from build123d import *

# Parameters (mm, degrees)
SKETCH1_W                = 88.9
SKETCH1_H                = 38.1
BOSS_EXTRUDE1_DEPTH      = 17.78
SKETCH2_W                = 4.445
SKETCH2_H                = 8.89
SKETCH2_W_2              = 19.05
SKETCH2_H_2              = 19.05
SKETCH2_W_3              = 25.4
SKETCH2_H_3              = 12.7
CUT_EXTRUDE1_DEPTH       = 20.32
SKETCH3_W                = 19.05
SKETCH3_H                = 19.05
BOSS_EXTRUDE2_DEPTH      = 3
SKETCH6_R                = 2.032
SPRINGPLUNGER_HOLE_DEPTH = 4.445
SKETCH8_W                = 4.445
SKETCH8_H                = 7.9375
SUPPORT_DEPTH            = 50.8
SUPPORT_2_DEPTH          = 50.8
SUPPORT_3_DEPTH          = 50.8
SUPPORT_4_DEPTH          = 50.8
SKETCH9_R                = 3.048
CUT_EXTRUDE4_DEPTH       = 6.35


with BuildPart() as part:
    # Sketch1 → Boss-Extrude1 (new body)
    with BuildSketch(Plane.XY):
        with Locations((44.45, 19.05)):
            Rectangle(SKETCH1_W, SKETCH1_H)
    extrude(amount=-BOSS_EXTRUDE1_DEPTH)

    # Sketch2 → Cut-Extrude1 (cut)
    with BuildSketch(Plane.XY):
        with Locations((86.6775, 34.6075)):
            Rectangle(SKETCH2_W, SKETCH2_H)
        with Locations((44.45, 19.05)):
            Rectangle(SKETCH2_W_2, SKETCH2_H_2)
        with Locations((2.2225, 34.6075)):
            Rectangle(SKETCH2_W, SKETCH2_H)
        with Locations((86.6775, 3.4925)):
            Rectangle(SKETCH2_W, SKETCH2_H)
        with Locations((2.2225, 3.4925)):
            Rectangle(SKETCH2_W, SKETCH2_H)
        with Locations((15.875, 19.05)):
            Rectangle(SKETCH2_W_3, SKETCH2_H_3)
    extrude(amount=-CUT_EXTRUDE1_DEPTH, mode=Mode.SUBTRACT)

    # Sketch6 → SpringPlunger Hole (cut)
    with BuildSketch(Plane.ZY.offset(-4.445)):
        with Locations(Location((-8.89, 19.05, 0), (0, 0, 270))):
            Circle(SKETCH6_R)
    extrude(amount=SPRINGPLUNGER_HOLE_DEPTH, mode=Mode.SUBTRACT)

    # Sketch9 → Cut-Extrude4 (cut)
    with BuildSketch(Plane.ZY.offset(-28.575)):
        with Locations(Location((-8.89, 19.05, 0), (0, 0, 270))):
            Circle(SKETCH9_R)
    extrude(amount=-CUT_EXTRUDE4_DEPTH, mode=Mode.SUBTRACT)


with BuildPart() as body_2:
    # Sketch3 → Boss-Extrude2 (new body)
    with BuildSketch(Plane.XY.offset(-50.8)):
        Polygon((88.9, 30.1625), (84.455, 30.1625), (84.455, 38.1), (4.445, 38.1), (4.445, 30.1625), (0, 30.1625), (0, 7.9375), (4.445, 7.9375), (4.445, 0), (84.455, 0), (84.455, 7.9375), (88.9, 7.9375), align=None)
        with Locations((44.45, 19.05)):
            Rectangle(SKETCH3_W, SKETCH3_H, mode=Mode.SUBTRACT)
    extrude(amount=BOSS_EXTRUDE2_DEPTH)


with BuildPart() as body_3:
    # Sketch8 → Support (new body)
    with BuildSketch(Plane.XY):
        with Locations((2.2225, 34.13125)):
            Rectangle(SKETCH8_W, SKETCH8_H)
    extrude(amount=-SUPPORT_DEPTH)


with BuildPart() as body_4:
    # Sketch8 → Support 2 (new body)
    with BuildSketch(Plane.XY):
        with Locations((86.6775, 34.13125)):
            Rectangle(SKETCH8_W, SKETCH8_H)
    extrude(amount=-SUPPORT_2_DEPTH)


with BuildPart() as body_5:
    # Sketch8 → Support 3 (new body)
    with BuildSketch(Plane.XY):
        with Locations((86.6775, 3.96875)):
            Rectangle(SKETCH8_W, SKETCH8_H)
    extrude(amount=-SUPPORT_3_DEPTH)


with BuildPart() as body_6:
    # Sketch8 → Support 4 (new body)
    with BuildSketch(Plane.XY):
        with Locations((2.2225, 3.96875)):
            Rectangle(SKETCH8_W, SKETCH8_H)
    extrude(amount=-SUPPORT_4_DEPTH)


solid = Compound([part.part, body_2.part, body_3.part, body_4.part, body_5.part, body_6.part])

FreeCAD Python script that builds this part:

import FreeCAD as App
import Part
import Sketcher
Q = App.Units.Quantity

doc = App.newDocument("Part")
body = doc.addObject("PartDesign::Body", "Body")

# Sketch on XY plane
sketch1 = body.newObject("Sketcher::SketchObject", "Sketch")
sketch1.AttachmentSupport = (doc.getObject("XY_Plane"), [""])
sketch1.MapMode = "FlatFace"
sketch1.addGeometry(Part.LineSegment(App.Vector(0, 38, 0), App.Vector(0, 0, 0)), False)
sketch1.addGeometry(Part.LineSegment(App.Vector(0, 0, 0), App.Vector(89, 0, 0)), False)
sketch1.addGeometry(Part.LineSegment(App.Vector(89, 0, 0), App.Vector(89, 38, 0)), False)
sketch1.addGeometry(Part.LineSegment(App.Vector(89, 38, 0), App.Vector(0, 38, 0)), False)
sketch1.addConstraint(Sketcher.Constraint("Coincident", 0, 2, 1, 1))
sketch1.addConstraint(Sketcher.Constraint("Coincident", 1, 2, 2, 1))
sketch1.addConstraint(Sketcher.Constraint("Coincident", 2, 2, 3, 1))
sketch1.addConstraint(Sketcher.Constraint("Coincident", 3, 2, 0, 1))
sketch1.addConstraint(Sketcher.Constraint("Vertical", 0))
sketch1.addConstraint(Sketcher.Constraint("Horizontal", 1))
sketch1.addConstraint(Sketcher.Constraint("Vertical", 2))
sketch1.addConstraint(Sketcher.Constraint("Horizontal", 3))
sketch1.addConstraint(Sketcher.Constraint("Coincident", 0, 2, -1, 1))
sketch1.addConstraint(Sketcher.Constraint("DistanceX", 1, 1, 1, 2, Q("3.5 in")))
sketch1.addConstraint(Sketcher.Constraint("DistanceY", 0, 2, 0, 1, Q("1.5 in")))
pad1 = body.newObject("PartDesign::Pad", "Pad")
pad1.Profile = sketch1
pad1.Length = Q("0.7 in")
pad1.Reversed = True

# Sketch on XY plane
sketch2 = body.newObject("Sketcher::SketchObject", "Sketch001")
sketch2.AttachmentSupport = (doc.getObject("XY_Plane"), [""])
sketch2.MapMode = "FlatFace"
sketch2.addGeometry(Part.LineSegment(App.Vector(84.5, 39.1, 0), App.Vector(84.5, 30.2, 0)), False)
sketch2.addGeometry(Part.LineSegment(App.Vector(84.5, 30.2, 0), App.Vector(88.9, 30.2, 0)), False)
sketch2.addGeometry(Part.LineSegment(App.Vector(88.9, 30.2, 0), App.Vector(88.9, 39.1, 0)), False)
sketch2.addGeometry(Part.LineSegment(App.Vector(88.9, 39.1, 0), App.Vector(84.5, 39.1, 0)), False)
sketch2.addGeometry(Part.LineSegment(App.Vector(34.9, 28.6, 0), App.Vector(34.9, 9.5, 0)), False)
sketch2.addGeometry(Part.LineSegment(App.Vector(34.9, 9.5, 0), App.Vector(54, 9.5, 0)), False)
sketch2.addGeometry(Part.LineSegment(App.Vector(54, 9.5, 0), App.Vector(54, 28.6, 0)), False)
sketch2.addGeometry(Part.LineSegment(App.Vector(54, 28.6, 0), App.Vector(34.9, 28.6, 0)), False)
sketch2.addGeometry(Part.LineSegment(App.Vector(0, 39.1, 0), App.Vector(0, 30.2, 0)), False)
sketch2.addGeometry(Part.LineSegment(App.Vector(0, 30.2, 0), App.Vector(4.4, 30.2, 0)), False)
sketch2.addGeometry(Part.LineSegment(App.Vector(4.4, 30.2, 0), App.Vector(4.4, 39.1, 0)), False)
sketch2.addGeometry(Part.LineSegment(App.Vector(4.4, 39.1, 0), App.Vector(0, 39.1, 0)), False)
sketch2.addGeometry(Part.LineSegment(App.Vector(84.5, 7.9, 0), App.Vector(84.5, -1, 0)), False)
sketch2.addGeometry(Part.LineSegment(App.Vector(84.5, -1, 0), App.Vector(88.9, -1, 0)), False)
sketch2.addGeometry(Part.LineSegment(App.Vector(88.9, -1, 0), App.Vector(88.9, 7.9, 0)), False)
sketch2.addGeometry(Part.LineSegment(App.Vector(88.9, 7.9, 0), App.Vector(84.5, 7.9, 0)), False)
sketch2.addGeometry(Part.LineSegment(App.Vector(0, 7.9, 0), App.Vector(0, -1, 0)), False)
sketch2.addGeometry(Part.LineSegment(App.Vector(0, -1, 0), App.Vector(4.4, -1, 0)), False)
sketch2.addGeometry(Part.LineSegment(App.Vector(4.4, -1, 0), App.Vector(4.4, 7.9, 0)), False)
sketch2.addGeometry(Part.LineSegment(App.Vector(4.4, 7.9, 0), App.Vector(0, 7.9, 0)), False)
sketch2.addGeometry(Part.LineSegment(App.Vector(3.2, 25.4, 0), App.Vector(3.2, 12.7, 0)), False)
sketch2.addGeometry(Part.LineSegment(App.Vector(3.2, 12.7, 0), App.Vector(28.6, 12.7, 0)), False)
sketch2.addGeometry(Part.LineSegment(App.Vector(28.6, 12.7, 0), App.Vector(28.6, 25.4, 0)), False)
sketch2.addGeometry(Part.LineSegment(App.Vector(28.6, 25.4, 0), App.Vector(3.2, 25.4, 0)), False)
sketch2.addConstraint(Sketcher.Constraint("Coincident", 0, 2, 1, 1))
sketch2.addConstraint(Sketcher.Constraint("Coincident", 1, 2, 2, 1))
sketch2.addConstraint(Sketcher.Constraint("Coincident", 2, 2, 3, 1))
sketch2.addConstraint(Sketcher.Constraint("Coincident", 3, 2, 0, 1))
sketch2.addConstraint(Sketcher.Constraint("Coincident", 4, 2, 5, 1))
sketch2.addConstraint(Sketcher.Constraint("Coincident", 5, 2, 6, 1))
sketch2.addConstraint(Sketcher.Constraint("Coincident", 6, 2, 7, 1))
sketch2.addConstraint(Sketcher.Constraint("Coincident", 7, 2, 4, 1))
sketch2.addConstraint(Sketcher.Constraint("Coincident", 8, 2, 9, 1))
sketch2.addConstraint(Sketcher.Constraint("Coincident", 9, 2, 10, 1))
sketch2.addConstraint(Sketcher.Constraint("Coincident", 10, 2, 11, 1))
sketch2.addConstraint(Sketcher.Constraint("Coincident", 11, 2, 8, 1))
sketch2.addConstraint(Sketcher.Constraint("Coincident", 12, 2, 13, 1))
sketch2.addConstraint(Sketcher.Constraint("Coincident", 13, 2, 14, 1))
sketch2.addConstraint(Sketcher.Constraint("Coincident", 14, 2, 15, 1))
sketch2.addConstraint(Sketcher.Constraint("Coincident", 15, 2, 12, 1))
sketch2.addConstraint(Sketcher.Constraint("Coincident", 16, 2, 17, 1))
sketch2.addConstraint(Sketcher.Constraint("Coincident", 17, 2, 18, 1))
sketch2.addConstraint(Sketcher.Constraint("Coincident", 18, 2, 19, 1))
sketch2.addConstraint(Sketcher.Constraint("Coincident", 19, 2, 16, 1))
sketch2.addConstraint(Sketcher.Constraint("Coincident", 20, 2, 21, 1))
sketch2.addConstraint(Sketcher.Constraint("Coincident", 21, 2, 22, 1))
sketch2.addConstraint(Sketcher.Constraint("Coincident", 22, 2, 23, 1))
sketch2.addConstraint(Sketcher.Constraint("Coincident", 23, 2, 20, 1))
sketch2.addConstraint(Sketcher.Constraint("Vertical", 0))
sketch2.addConstraint(Sketcher.Constraint("Horizontal", 1))
sketch2.addConstraint(Sketcher.Constraint("Vertical", 2))
sketch2.addConstraint(Sketcher.Constraint("Horizontal", 3))
sketch2.addConstraint(Sketcher.Constraint("Vertical", 4))
sketch2.addConstraint(Sketcher.Constraint("Horizontal", 5))
sketch2.addConstraint(Sketcher.Constraint("Vertical", 6))
sketch2.addConstraint(Sketcher.Constraint("Horizontal", 7))
sketch2.addConstraint(Sketcher.Constraint("Vertical", 8))
sketch2.addConstraint(Sketcher.Constraint("Horizontal", 9))
sketch2.addConstraint(Sketcher.Constraint("Vertical", 10))
sketch2.addConstraint(Sketcher.Constraint("Horizontal", 11))
sketch2.addConstraint(Sketcher.Constraint("Vertical", 12))
sketch2.addConstraint(Sketcher.Constraint("Horizontal", 13))
sketch2.addConstraint(Sketcher.Constraint("Vertical", 14))
sketch2.addConstraint(Sketcher.Constraint("Horizontal", 15))
sketch2.addConstraint(Sketcher.Constraint("Vertical", 16))
sketch2.addConstraint(Sketcher.Constraint("Horizontal", 17))
sketch2.addConstraint(Sketcher.Constraint("Vertical", 18))
sketch2.addConstraint(Sketcher.Constraint("Horizontal", 19))
sketch2.addConstraint(Sketcher.Constraint("Vertical", 20))
sketch2.addConstraint(Sketcher.Constraint("Horizontal", 21))
sketch2.addConstraint(Sketcher.Constraint("Vertical", 22))
sketch2.addConstraint(Sketcher.Constraint("Horizontal", 23))
sketch2.addConstraint(Sketcher.Constraint("PointOnObject", 8, 2, -2))
sketch2.addConstraint(Sketcher.Constraint("PointOnObject", 16, 2, -2))
sketch2.addConstraint(Sketcher.Constraint("Horizontal", 1, 2, 8, 2))
sketch2.addConstraint(Sketcher.Constraint("Horizontal", 3, 2, 10, 2))
sketch2.addConstraint(Sketcher.Constraint("Horizontal", 13, 2, 16, 2))
sketch2.addConstraint(Sketcher.Constraint("Horizontal", 15, 2, 18, 2))
sketch2.addConstraint(Sketcher.Constraint("Vertical", 3, 2, 12, 2))
sketch2.addConstraint(Sketcher.Constraint("Vertical", 2, 2, 13, 2))
sketch2.addConstraint(Sketcher.Constraint("Vertical", 10, 2, 17, 2))
sketch2.addConstraint(Sketcher.Constraint("Equal", 3, 9))
sketch2.addConstraint(Sketcher.Constraint("Equal", 7, 4))
sketch2.addConstraint(Sketcher.Constraint("Equal", 10, 12))
sketch2.addConstraint(Sketcher.Constraint("DistanceX", 21, 1, 21, 2, Q("1 in")))
sketch2.addConstraint(Sketcher.Constraint("DistanceY", 20, 2, 20, 1, Q("0.5 in")))
sketch2.addConstraint(Sketcher.Constraint("DistanceY", -1, 1, 22, 2, Q("1 in")))
sketch2.addConstraint(Sketcher.Constraint("DistanceX", 21, 2, 5, 2, Q("1 in")))
sketch2.addConstraint(Sketcher.Constraint("DistanceX", 5, 1, 5, 2, Q("0.75 in")))
sketch2.addConstraint(Sketcher.Constraint("DistanceY", 0, 2, 0, 1, Q("0.35 in")))
sketch2.addConstraint(Sketcher.Constraint("DistanceX", -1, 1, 1, 2, Q("3.5 in")))
sketch2.addConstraint(Sketcher.Constraint("DistanceX", 5, 2, 0, 2, Q("1.2 in")))
sketch2.addConstraint(Sketcher.Constraint("DistanceX", 9, 2, 7, 2, Q("1.2 in")))
sketch2.addConstraint(Sketcher.Constraint("DistanceY", -1, 1, 0, 2, Q("1.1875 in")))
sketch2.addConstraint(Sketcher.Constraint("DistanceY", -1, 1, 4, 2, Q("0.375 in")))
sketch2.addConstraint(Sketcher.Constraint("DistanceY", -1, 1, 14, 2, Q("0.3125 in")))
pocket1 = body.newObject("PartDesign::Pocket", "Pocket")
pocket1.Profile = sketch2
pocket1.Length = Q("0.8 in")

# Sketch on YZ plane
sketch3 = body.newObject("Sketcher::SketchObject", "Sketch002")
sketch3.AttachmentSupport = (doc.getObject("YZ_Plane"), [""])
sketch3.MapMode = "FlatFace"
sketch3.AttachmentOffset = App.Placement(App.Vector(0, 0, 0.175 * 25.4), App.Rotation())
sketch3.addGeometry(Part.Circle(App.Vector(19.1, -8.9, 0), App.Vector(0, 0, 1), 2), False)
sketch3.addConstraint(Sketcher.Constraint("Diameter", 0, Q("0.16 in")))
sketch3.addConstraint(Sketcher.Constraint("DistanceX", -1, 1, 0, 3, Q("0.75 in")))
sketch3.addConstraint(Sketcher.Constraint("DistanceY", 0, 3, -1, 1, Q("0.35 in")))
pocket2 = body.newObject("PartDesign::Pocket", "Pocket001")
pocket2.Profile = sketch3
pocket2.Length = Q("0.175 in")

# Sketch on YZ plane
sketch4 = body.newObject("Sketcher::SketchObject", "Sketch003")
sketch4.AttachmentSupport = (doc.getObject("YZ_Plane"), [""])
sketch4.MapMode = "FlatFace"
sketch4.AttachmentOffset = App.Placement(App.Vector(0, 0, 1.125 * 25.4), App.Rotation())
sketch4.addGeometry(Part.Circle(App.Vector(19.1, -8.9, 0), App.Vector(0, 0, 1), 3), False)
sketch4.addConstraint(Sketcher.Constraint("Diameter", 0, Q("0.24 in")))
sketch4.addConstraint(Sketcher.Constraint("DistanceX", -1, 1, 0, 3, Q("0.75 in")))
sketch4.addConstraint(Sketcher.Constraint("DistanceY", 0, 3, -1, 1, Q("0.35 in")))
pocket3 = body.newObject("PartDesign::Pocket", "Pocket002")
pocket3.Profile = sketch4
pocket3.Length = Q("0.25 in")
pocket3.Reversed = True
body2 = doc.addObject("PartDesign::Body", "Body001")

# Sketch on XY plane
sketch5 = body2.newObject("Sketcher::SketchObject", "Sketch004")
sketch5.AttachmentSupport = (doc.getObject("XY_Plane001"), [""])
sketch5.MapMode = "FlatFace"
sketch5.AttachmentOffset = App.Placement(App.Vector(0, 0, -2 * 25.4), App.Rotation())
sketch5.addGeometry(Part.LineSegment(App.Vector(88.9, 30.2, 0), App.Vector(84.5, 30.2, 0)), False)
sketch5.addGeometry(Part.LineSegment(App.Vector(84.5, 30.2, 0), App.Vector(84.5, 38.1, 0)), False)
sketch5.addGeometry(Part.LineSegment(App.Vector(84.5, 38.1, 0), App.Vector(4.4, 38.1, 0)), False)
sketch5.addGeometry(Part.LineSegment(App.Vector(4.4, 38.1, 0), App.Vector(4.4, 30.2, 0)), False)
sketch5.addGeometry(Part.LineSegment(App.Vector(4.4, 30.2, 0), App.Vector(0, 30.2, 0)), False)
sketch5.addGeometry(Part.LineSegment(App.Vector(0, 30.2, 0), App.Vector(0, 7.9, 0)), False)
sketch5.addGeometry(Part.LineSegment(App.Vector(0, 7.9, 0), App.Vector(4.4, 7.9, 0)), False)
sketch5.addGeometry(Part.LineSegment(App.Vector(4.4, 7.9, 0), App.Vector(4.4, 0, 0)), False)
sketch5.addGeometry(Part.LineSegment(App.Vector(4.4, 0, 0), App.Vector(84.5, 0, 0)), False)
sketch5.addGeometry(Part.LineSegment(App.Vector(84.5, 0, 0), App.Vector(84.5, 7.9, 0)), False)
sketch5.addGeometry(Part.LineSegment(App.Vector(84.5, 7.9, 0), App.Vector(88.9, 7.9, 0)), False)
sketch5.addGeometry(Part.LineSegment(App.Vector(88.9, 7.9, 0), App.Vector(88.9, 30.2, 0)), False)
sketch5.addGeometry(Part.LineSegment(App.Vector(54, 9.5, 0), App.Vector(34.9, 9.5, 0)), False)
sketch5.addGeometry(Part.LineSegment(App.Vector(34.9, 9.5, 0), App.Vector(34.9, 28.6, 0)), False)
sketch5.addGeometry(Part.LineSegment(App.Vector(34.9, 28.6, 0), App.Vector(54, 28.6, 0)), False)
sketch5.addGeometry(Part.LineSegment(App.Vector(54, 28.6, 0), App.Vector(54, 9.5, 0)), False)
sketch5.addConstraint(Sketcher.Constraint("Coincident", 0, 2, 1, 1))
sketch5.addConstraint(Sketcher.Constraint("Coincident", 1, 2, 2, 1))
sketch5.addConstraint(Sketcher.Constraint("Coincident", 2, 2, 3, 1))
sketch5.addConstraint(Sketcher.Constraint("Coincident", 3, 2, 4, 1))
sketch5.addConstraint(Sketcher.Constraint("Coincident", 4, 2, 5, 1))
sketch5.addConstraint(Sketcher.Constraint("Coincident", 5, 2, 6, 1))
sketch5.addConstraint(Sketcher.Constraint("Coincident", 6, 2, 7, 1))
sketch5.addConstraint(Sketcher.Constraint("Coincident", 7, 2, 8, 1))
sketch5.addConstraint(Sketcher.Constraint("Coincident", 8, 2, 9, 1))
sketch5.addConstraint(Sketcher.Constraint("Coincident", 9, 2, 10, 1))
sketch5.addConstraint(Sketcher.Constraint("Coincident", 10, 2, 11, 1))
sketch5.addConstraint(Sketcher.Constraint("Coincident", 11, 2, 0, 1))
sketch5.addConstraint(Sketcher.Constraint("Coincident", 12, 2, 13, 1))
sketch5.addConstraint(Sketcher.Constraint("Coincident", 13, 2, 14, 1))
sketch5.addConstraint(Sketcher.Constraint("Coincident", 14, 2, 15, 1))
sketch5.addConstraint(Sketcher.Constraint("Coincident", 15, 2, 12, 1))
sketch5.addConstraint(Sketcher.Constraint("Horizontal", 0))
sketch5.addConstraint(Sketcher.Constraint("Vertical", 1))
sketch5.addConstraint(Sketcher.Constraint("Horizontal", 2))
sketch5.addConstraint(Sketcher.Constraint("Vertical", 3))
sketch5.addConstraint(Sketcher.Constraint("Horizontal", 4))
sketch5.addConstraint(Sketcher.Constraint("Vertical", 5))
sketch5.addConstraint(Sketcher.Constraint("Horizontal", 6))
sketch5.addConstraint(Sketcher.Constraint("Vertical", 7))
sketch5.addConstraint(Sketcher.Constraint("Horizontal", 8))
sketch5.addConstraint(Sketcher.Constraint("Vertical", 9))
sketch5.addConstraint(Sketcher.Constraint("Horizontal", 10))
sketch5.addConstraint(Sketcher.Constraint("Vertical", 11))
sketch5.addConstraint(Sketcher.Constraint("Horizontal", 12))
sketch5.addConstraint(Sketcher.Constraint("Vertical", 13))
sketch5.addConstraint(Sketcher.Constraint("Horizontal", 14))
sketch5.addConstraint(Sketcher.Constraint("Vertical", 15))
sketch5.addConstraint(Sketcher.Constraint("PointOnObject", 4, 2, -2))
sketch5.addConstraint(Sketcher.Constraint("PointOnObject", 7, 2, -1))
sketch5.addConstraint(Sketcher.Constraint("Horizontal", 0, 2, 3, 2))
sketch5.addConstraint(Sketcher.Constraint("Horizontal", 6, 2, 9, 2))
sketch5.addConstraint(Sketcher.Constraint("Vertical", 3, 2, 6, 2))
sketch5.addConstraint(Sketcher.Constraint("Vertical", 1, 2, 8, 2))
sketch5.addConstraint(Sketcher.Constraint("Equal", 0, 4))
sketch5.addConstraint(Sketcher.Constraint("Equal", 3, 7))
sketch5.addConstraint(Sketcher.Constraint("Equal", 14, 13))
sketch5.addConstraint(Sketcher.Constraint("DistanceX", 2, 2, 2, 1, Q("3.15 in")))
sketch5.addConstraint(Sketcher.Constraint("DistanceX", 12, 2, 12, 1, Q("0.75 in")))
sketch5.addConstraint(Sketcher.Constraint("DistanceY", -1, 1, 1, 2, Q("1.5 in")))
sketch5.addConstraint(Sketcher.Constraint("DistanceX", -1, 1, 10, 2, Q("3.5 in")))
sketch5.addConstraint(Sketcher.Constraint("DistanceX", 6, 2, 12, 2, Q("1.2 in")))
sketch5.addConstraint(Sketcher.Constraint("DistanceY", 1, 1, 1, 2, Q("0.3125 in")))
sketch5.addConstraint(Sketcher.Constraint("DistanceY", -1, 1, 12, 2, Q("0.375 in")))
pad2 = body2.newObject("PartDesign::Pad", "Pad001")
pad2.Profile = sketch5
pad2.Length = 3
body3 = doc.addObject("PartDesign::Body", "Body002")

# Sketch on XY plane
sketch6 = body3.newObject("Sketcher::SketchObject", "Sketch005")
sketch6.AttachmentSupport = (doc.getObject("XY_Plane002"), [""])
sketch6.MapMode = "FlatFace"
sketch6.addGeometry(Part.LineSegment(App.Vector(0, 38.1, 0), App.Vector(0, 30.2, 0)), False)
sketch6.addGeometry(Part.LineSegment(App.Vector(0, 30.2, 0), App.Vector(4.4, 30.2, 0)), False)
sketch6.addGeometry(Part.LineSegment(App.Vector(4.4, 30.2, 0), App.Vector(4.4, 38.1, 0)), False)
sketch6.addGeometry(Part.LineSegment(App.Vector(4.4, 38.1, 0), App.Vector(0, 38.1, 0)), False)
sketch6.addConstraint(Sketcher.Constraint("Coincident", 0, 2, 1, 1))
sketch6.addConstraint(Sketcher.Constraint("Coincident", 1, 2, 2, 1))
sketch6.addConstraint(Sketcher.Constraint("Coincident", 2, 2, 3, 1))
sketch6.addConstraint(Sketcher.Constraint("Coincident", 3, 2, 0, 1))
sketch6.addConstraint(Sketcher.Constraint("Vertical", 0))
sketch6.addConstraint(Sketcher.Constraint("Horizontal", 1))
sketch6.addConstraint(Sketcher.Constraint("Vertical", 2))
sketch6.addConstraint(Sketcher.Constraint("Horizontal", 3))
sketch6.addConstraint(Sketcher.Constraint("PointOnObject", 0, 2, -2))
sketch6.addConstraint(Sketcher.Constraint("DistanceY", -1, 1, 2, 2, Q("1.5 in")))
sketch6.addConstraint(Sketcher.Constraint("DistanceX", 1, 1, 1, 2, Q("0.175 in")))
sketch6.addConstraint(Sketcher.Constraint("DistanceY", 0, 2, 0, 1, Q("0.3125 in")))
pad3 = body3.newObject("PartDesign::Pad", "Pad002")
pad3.Profile = sketch6
pad3.Length = Q("2 in")
pad3.Reversed = True
body4 = doc.addObject("PartDesign::Body", "Body003")

# Sketch on XY plane
sketch7 = body4.newObject("Sketcher::SketchObject", "Sketch006")
sketch7.AttachmentSupport = (doc.getObject("XY_Plane003"), [""])
sketch7.MapMode = "FlatFace"
sketch7.addGeometry(Part.LineSegment(App.Vector(84.5, 38.1, 0), App.Vector(84.5, 30.2, 0)), False)
sketch7.addGeometry(Part.LineSegment(App.Vector(84.5, 30.2, 0), App.Vector(88.9, 30.2, 0)), False)
sketch7.addGeometry(Part.LineSegment(App.Vector(88.9, 30.2, 0), App.Vector(88.9, 38.1, 0)), False)
sketch7.addGeometry(Part.LineSegment(App.Vector(88.9, 38.1, 0), App.Vector(84.5, 38.1, 0)), False)
sketch7.addConstraint(Sketcher.Constraint("Coincident", 0, 2, 1, 1))
sketch7.addConstraint(Sketcher.Constraint("Coincident", 1, 2, 2, 1))
sketch7.addConstraint(Sketcher.Constraint("Coincident", 2, 2, 3, 1))
sketch7.addConstraint(Sketcher.Constraint("Coincident", 3, 2, 0, 1))
sketch7.addConstraint(Sketcher.Constraint("Vertical", 0))
sketch7.addConstraint(Sketcher.Constraint("Horizontal", 1))
sketch7.addConstraint(Sketcher.Constraint("Vertical", 2))
sketch7.addConstraint(Sketcher.Constraint("Horizontal", 3))
sketch7.addConstraint(Sketcher.Constraint("DistanceX", -1, 1, 1, 2, Q("3.5 in")))
sketch7.addConstraint(Sketcher.Constraint("DistanceY", -1, 1, 2, 2, Q("1.5 in")))
sketch7.addConstraint(Sketcher.Constraint("DistanceX", 1, 1, 1, 2, Q("0.175 in")))
sketch7.addConstraint(Sketcher.Constraint("DistanceY", 0, 2, 0, 1, Q("0.3125 in")))
pad4 = body4.newObject("PartDesign::Pad", "Pad003")
pad4.Profile = sketch7
pad4.Length = Q("2 in")
pad4.Reversed = True
body5 = doc.addObject("PartDesign::Body", "Body004")

# Sketch on XY plane
sketch8 = body5.newObject("Sketcher::SketchObject", "Sketch007")
sketch8.AttachmentSupport = (doc.getObject("XY_Plane004"), [""])
sketch8.MapMode = "FlatFace"
sketch8.addGeometry(Part.LineSegment(App.Vector(84.5, 7.9, 0), App.Vector(84.5, 0, 0)), False)
sketch8.addGeometry(Part.LineSegment(App.Vector(84.5, 0, 0), App.Vector(88.9, 0, 0)), False)
sketch8.addGeometry(Part.LineSegment(App.Vector(88.9, 0, 0), App.Vector(88.9, 7.9, 0)), False)
sketch8.addGeometry(Part.LineSegment(App.Vector(88.9, 7.9, 0), App.Vector(84.5, 7.9, 0)), False)
sketch8.addConstraint(Sketcher.Constraint("Coincident", 0, 2, 1, 1))
sketch8.addConstraint(Sketcher.Constraint("Coincident", 1, 2, 2, 1))
sketch8.addConstraint(Sketcher.Constraint("Coincident", 2, 2, 3, 1))
sketch8.addConstraint(Sketcher.Constraint("Coincident", 3, 2, 0, 1))
sketch8.addConstraint(Sketcher.Constraint("Vertical", 0))
sketch8.addConstraint(Sketcher.Constraint("Horizontal", 1))
sketch8.addConstraint(Sketcher.Constraint("Vertical", 2))
sketch8.addConstraint(Sketcher.Constraint("Horizontal", 3))
sketch8.addConstraint(Sketcher.Constraint("PointOnObject", 0, 2, -1))
sketch8.addConstraint(Sketcher.Constraint("DistanceX", -1, 1, 1, 2, Q("3.5 in")))
sketch8.addConstraint(Sketcher.Constraint("DistanceX", 1, 1, 1, 2, Q("0.175 in")))
sketch8.addConstraint(Sketcher.Constraint("DistanceY", 0, 2, 0, 1, Q("0.3125 in")))
pad5 = body5.newObject("PartDesign::Pad", "Pad004")
pad5.Profile = sketch8
pad5.Length = Q("2 in")
pad5.Reversed = True
body6 = doc.addObject("PartDesign::Body", "Body005")

# Sketch on XY plane
sketch9 = body6.newObject("Sketcher::SketchObject", "Sketch008")
sketch9.AttachmentSupport = (doc.getObject("XY_Plane005"), [""])
sketch9.MapMode = "FlatFace"
sketch9.addGeometry(Part.LineSegment(App.Vector(0, 7.9, 0), App.Vector(0, 0, 0)), False)
sketch9.addGeometry(Part.LineSegment(App.Vector(0, 0, 0), App.Vector(4.4, 0, 0)), False)
sketch9.addGeometry(Part.LineSegment(App.Vector(4.4, 0, 0), App.Vector(4.4, 7.9, 0)), False)
sketch9.addGeometry(Part.LineSegment(App.Vector(4.4, 7.9, 0), App.Vector(0, 7.9, 0)), False)
sketch9.addConstraint(Sketcher.Constraint("Coincident", 0, 2, 1, 1))
sketch9.addConstraint(Sketcher.Constraint("Coincident", 1, 2, 2, 1))
sketch9.addConstraint(Sketcher.Constraint("Coincident", 2, 2, 3, 1))
sketch9.addConstraint(Sketcher.Constraint("Coincident", 3, 2, 0, 1))
sketch9.addConstraint(Sketcher.Constraint("Vertical", 0))
sketch9.addConstraint(Sketcher.Constraint("Horizontal", 1))
sketch9.addConstraint(Sketcher.Constraint("Vertical", 2))
sketch9.addConstraint(Sketcher.Constraint("Horizontal", 3))
sketch9.addConstraint(Sketcher.Constraint("Coincident", 0, 2, -1, 1))
sketch9.addConstraint(Sketcher.Constraint("DistanceX", 1, 1, 1, 2, Q("0.175 in")))
sketch9.addConstraint(Sketcher.Constraint("DistanceY", 0, 2, 0, 1, Q("0.3125 in")))
pad6 = body6.newObject("PartDesign::Pad", "Pad005")
pad6.Profile = sketch9
pad6.Length = Q("2 in")
pad6.Reversed = True

doc.recompute()
